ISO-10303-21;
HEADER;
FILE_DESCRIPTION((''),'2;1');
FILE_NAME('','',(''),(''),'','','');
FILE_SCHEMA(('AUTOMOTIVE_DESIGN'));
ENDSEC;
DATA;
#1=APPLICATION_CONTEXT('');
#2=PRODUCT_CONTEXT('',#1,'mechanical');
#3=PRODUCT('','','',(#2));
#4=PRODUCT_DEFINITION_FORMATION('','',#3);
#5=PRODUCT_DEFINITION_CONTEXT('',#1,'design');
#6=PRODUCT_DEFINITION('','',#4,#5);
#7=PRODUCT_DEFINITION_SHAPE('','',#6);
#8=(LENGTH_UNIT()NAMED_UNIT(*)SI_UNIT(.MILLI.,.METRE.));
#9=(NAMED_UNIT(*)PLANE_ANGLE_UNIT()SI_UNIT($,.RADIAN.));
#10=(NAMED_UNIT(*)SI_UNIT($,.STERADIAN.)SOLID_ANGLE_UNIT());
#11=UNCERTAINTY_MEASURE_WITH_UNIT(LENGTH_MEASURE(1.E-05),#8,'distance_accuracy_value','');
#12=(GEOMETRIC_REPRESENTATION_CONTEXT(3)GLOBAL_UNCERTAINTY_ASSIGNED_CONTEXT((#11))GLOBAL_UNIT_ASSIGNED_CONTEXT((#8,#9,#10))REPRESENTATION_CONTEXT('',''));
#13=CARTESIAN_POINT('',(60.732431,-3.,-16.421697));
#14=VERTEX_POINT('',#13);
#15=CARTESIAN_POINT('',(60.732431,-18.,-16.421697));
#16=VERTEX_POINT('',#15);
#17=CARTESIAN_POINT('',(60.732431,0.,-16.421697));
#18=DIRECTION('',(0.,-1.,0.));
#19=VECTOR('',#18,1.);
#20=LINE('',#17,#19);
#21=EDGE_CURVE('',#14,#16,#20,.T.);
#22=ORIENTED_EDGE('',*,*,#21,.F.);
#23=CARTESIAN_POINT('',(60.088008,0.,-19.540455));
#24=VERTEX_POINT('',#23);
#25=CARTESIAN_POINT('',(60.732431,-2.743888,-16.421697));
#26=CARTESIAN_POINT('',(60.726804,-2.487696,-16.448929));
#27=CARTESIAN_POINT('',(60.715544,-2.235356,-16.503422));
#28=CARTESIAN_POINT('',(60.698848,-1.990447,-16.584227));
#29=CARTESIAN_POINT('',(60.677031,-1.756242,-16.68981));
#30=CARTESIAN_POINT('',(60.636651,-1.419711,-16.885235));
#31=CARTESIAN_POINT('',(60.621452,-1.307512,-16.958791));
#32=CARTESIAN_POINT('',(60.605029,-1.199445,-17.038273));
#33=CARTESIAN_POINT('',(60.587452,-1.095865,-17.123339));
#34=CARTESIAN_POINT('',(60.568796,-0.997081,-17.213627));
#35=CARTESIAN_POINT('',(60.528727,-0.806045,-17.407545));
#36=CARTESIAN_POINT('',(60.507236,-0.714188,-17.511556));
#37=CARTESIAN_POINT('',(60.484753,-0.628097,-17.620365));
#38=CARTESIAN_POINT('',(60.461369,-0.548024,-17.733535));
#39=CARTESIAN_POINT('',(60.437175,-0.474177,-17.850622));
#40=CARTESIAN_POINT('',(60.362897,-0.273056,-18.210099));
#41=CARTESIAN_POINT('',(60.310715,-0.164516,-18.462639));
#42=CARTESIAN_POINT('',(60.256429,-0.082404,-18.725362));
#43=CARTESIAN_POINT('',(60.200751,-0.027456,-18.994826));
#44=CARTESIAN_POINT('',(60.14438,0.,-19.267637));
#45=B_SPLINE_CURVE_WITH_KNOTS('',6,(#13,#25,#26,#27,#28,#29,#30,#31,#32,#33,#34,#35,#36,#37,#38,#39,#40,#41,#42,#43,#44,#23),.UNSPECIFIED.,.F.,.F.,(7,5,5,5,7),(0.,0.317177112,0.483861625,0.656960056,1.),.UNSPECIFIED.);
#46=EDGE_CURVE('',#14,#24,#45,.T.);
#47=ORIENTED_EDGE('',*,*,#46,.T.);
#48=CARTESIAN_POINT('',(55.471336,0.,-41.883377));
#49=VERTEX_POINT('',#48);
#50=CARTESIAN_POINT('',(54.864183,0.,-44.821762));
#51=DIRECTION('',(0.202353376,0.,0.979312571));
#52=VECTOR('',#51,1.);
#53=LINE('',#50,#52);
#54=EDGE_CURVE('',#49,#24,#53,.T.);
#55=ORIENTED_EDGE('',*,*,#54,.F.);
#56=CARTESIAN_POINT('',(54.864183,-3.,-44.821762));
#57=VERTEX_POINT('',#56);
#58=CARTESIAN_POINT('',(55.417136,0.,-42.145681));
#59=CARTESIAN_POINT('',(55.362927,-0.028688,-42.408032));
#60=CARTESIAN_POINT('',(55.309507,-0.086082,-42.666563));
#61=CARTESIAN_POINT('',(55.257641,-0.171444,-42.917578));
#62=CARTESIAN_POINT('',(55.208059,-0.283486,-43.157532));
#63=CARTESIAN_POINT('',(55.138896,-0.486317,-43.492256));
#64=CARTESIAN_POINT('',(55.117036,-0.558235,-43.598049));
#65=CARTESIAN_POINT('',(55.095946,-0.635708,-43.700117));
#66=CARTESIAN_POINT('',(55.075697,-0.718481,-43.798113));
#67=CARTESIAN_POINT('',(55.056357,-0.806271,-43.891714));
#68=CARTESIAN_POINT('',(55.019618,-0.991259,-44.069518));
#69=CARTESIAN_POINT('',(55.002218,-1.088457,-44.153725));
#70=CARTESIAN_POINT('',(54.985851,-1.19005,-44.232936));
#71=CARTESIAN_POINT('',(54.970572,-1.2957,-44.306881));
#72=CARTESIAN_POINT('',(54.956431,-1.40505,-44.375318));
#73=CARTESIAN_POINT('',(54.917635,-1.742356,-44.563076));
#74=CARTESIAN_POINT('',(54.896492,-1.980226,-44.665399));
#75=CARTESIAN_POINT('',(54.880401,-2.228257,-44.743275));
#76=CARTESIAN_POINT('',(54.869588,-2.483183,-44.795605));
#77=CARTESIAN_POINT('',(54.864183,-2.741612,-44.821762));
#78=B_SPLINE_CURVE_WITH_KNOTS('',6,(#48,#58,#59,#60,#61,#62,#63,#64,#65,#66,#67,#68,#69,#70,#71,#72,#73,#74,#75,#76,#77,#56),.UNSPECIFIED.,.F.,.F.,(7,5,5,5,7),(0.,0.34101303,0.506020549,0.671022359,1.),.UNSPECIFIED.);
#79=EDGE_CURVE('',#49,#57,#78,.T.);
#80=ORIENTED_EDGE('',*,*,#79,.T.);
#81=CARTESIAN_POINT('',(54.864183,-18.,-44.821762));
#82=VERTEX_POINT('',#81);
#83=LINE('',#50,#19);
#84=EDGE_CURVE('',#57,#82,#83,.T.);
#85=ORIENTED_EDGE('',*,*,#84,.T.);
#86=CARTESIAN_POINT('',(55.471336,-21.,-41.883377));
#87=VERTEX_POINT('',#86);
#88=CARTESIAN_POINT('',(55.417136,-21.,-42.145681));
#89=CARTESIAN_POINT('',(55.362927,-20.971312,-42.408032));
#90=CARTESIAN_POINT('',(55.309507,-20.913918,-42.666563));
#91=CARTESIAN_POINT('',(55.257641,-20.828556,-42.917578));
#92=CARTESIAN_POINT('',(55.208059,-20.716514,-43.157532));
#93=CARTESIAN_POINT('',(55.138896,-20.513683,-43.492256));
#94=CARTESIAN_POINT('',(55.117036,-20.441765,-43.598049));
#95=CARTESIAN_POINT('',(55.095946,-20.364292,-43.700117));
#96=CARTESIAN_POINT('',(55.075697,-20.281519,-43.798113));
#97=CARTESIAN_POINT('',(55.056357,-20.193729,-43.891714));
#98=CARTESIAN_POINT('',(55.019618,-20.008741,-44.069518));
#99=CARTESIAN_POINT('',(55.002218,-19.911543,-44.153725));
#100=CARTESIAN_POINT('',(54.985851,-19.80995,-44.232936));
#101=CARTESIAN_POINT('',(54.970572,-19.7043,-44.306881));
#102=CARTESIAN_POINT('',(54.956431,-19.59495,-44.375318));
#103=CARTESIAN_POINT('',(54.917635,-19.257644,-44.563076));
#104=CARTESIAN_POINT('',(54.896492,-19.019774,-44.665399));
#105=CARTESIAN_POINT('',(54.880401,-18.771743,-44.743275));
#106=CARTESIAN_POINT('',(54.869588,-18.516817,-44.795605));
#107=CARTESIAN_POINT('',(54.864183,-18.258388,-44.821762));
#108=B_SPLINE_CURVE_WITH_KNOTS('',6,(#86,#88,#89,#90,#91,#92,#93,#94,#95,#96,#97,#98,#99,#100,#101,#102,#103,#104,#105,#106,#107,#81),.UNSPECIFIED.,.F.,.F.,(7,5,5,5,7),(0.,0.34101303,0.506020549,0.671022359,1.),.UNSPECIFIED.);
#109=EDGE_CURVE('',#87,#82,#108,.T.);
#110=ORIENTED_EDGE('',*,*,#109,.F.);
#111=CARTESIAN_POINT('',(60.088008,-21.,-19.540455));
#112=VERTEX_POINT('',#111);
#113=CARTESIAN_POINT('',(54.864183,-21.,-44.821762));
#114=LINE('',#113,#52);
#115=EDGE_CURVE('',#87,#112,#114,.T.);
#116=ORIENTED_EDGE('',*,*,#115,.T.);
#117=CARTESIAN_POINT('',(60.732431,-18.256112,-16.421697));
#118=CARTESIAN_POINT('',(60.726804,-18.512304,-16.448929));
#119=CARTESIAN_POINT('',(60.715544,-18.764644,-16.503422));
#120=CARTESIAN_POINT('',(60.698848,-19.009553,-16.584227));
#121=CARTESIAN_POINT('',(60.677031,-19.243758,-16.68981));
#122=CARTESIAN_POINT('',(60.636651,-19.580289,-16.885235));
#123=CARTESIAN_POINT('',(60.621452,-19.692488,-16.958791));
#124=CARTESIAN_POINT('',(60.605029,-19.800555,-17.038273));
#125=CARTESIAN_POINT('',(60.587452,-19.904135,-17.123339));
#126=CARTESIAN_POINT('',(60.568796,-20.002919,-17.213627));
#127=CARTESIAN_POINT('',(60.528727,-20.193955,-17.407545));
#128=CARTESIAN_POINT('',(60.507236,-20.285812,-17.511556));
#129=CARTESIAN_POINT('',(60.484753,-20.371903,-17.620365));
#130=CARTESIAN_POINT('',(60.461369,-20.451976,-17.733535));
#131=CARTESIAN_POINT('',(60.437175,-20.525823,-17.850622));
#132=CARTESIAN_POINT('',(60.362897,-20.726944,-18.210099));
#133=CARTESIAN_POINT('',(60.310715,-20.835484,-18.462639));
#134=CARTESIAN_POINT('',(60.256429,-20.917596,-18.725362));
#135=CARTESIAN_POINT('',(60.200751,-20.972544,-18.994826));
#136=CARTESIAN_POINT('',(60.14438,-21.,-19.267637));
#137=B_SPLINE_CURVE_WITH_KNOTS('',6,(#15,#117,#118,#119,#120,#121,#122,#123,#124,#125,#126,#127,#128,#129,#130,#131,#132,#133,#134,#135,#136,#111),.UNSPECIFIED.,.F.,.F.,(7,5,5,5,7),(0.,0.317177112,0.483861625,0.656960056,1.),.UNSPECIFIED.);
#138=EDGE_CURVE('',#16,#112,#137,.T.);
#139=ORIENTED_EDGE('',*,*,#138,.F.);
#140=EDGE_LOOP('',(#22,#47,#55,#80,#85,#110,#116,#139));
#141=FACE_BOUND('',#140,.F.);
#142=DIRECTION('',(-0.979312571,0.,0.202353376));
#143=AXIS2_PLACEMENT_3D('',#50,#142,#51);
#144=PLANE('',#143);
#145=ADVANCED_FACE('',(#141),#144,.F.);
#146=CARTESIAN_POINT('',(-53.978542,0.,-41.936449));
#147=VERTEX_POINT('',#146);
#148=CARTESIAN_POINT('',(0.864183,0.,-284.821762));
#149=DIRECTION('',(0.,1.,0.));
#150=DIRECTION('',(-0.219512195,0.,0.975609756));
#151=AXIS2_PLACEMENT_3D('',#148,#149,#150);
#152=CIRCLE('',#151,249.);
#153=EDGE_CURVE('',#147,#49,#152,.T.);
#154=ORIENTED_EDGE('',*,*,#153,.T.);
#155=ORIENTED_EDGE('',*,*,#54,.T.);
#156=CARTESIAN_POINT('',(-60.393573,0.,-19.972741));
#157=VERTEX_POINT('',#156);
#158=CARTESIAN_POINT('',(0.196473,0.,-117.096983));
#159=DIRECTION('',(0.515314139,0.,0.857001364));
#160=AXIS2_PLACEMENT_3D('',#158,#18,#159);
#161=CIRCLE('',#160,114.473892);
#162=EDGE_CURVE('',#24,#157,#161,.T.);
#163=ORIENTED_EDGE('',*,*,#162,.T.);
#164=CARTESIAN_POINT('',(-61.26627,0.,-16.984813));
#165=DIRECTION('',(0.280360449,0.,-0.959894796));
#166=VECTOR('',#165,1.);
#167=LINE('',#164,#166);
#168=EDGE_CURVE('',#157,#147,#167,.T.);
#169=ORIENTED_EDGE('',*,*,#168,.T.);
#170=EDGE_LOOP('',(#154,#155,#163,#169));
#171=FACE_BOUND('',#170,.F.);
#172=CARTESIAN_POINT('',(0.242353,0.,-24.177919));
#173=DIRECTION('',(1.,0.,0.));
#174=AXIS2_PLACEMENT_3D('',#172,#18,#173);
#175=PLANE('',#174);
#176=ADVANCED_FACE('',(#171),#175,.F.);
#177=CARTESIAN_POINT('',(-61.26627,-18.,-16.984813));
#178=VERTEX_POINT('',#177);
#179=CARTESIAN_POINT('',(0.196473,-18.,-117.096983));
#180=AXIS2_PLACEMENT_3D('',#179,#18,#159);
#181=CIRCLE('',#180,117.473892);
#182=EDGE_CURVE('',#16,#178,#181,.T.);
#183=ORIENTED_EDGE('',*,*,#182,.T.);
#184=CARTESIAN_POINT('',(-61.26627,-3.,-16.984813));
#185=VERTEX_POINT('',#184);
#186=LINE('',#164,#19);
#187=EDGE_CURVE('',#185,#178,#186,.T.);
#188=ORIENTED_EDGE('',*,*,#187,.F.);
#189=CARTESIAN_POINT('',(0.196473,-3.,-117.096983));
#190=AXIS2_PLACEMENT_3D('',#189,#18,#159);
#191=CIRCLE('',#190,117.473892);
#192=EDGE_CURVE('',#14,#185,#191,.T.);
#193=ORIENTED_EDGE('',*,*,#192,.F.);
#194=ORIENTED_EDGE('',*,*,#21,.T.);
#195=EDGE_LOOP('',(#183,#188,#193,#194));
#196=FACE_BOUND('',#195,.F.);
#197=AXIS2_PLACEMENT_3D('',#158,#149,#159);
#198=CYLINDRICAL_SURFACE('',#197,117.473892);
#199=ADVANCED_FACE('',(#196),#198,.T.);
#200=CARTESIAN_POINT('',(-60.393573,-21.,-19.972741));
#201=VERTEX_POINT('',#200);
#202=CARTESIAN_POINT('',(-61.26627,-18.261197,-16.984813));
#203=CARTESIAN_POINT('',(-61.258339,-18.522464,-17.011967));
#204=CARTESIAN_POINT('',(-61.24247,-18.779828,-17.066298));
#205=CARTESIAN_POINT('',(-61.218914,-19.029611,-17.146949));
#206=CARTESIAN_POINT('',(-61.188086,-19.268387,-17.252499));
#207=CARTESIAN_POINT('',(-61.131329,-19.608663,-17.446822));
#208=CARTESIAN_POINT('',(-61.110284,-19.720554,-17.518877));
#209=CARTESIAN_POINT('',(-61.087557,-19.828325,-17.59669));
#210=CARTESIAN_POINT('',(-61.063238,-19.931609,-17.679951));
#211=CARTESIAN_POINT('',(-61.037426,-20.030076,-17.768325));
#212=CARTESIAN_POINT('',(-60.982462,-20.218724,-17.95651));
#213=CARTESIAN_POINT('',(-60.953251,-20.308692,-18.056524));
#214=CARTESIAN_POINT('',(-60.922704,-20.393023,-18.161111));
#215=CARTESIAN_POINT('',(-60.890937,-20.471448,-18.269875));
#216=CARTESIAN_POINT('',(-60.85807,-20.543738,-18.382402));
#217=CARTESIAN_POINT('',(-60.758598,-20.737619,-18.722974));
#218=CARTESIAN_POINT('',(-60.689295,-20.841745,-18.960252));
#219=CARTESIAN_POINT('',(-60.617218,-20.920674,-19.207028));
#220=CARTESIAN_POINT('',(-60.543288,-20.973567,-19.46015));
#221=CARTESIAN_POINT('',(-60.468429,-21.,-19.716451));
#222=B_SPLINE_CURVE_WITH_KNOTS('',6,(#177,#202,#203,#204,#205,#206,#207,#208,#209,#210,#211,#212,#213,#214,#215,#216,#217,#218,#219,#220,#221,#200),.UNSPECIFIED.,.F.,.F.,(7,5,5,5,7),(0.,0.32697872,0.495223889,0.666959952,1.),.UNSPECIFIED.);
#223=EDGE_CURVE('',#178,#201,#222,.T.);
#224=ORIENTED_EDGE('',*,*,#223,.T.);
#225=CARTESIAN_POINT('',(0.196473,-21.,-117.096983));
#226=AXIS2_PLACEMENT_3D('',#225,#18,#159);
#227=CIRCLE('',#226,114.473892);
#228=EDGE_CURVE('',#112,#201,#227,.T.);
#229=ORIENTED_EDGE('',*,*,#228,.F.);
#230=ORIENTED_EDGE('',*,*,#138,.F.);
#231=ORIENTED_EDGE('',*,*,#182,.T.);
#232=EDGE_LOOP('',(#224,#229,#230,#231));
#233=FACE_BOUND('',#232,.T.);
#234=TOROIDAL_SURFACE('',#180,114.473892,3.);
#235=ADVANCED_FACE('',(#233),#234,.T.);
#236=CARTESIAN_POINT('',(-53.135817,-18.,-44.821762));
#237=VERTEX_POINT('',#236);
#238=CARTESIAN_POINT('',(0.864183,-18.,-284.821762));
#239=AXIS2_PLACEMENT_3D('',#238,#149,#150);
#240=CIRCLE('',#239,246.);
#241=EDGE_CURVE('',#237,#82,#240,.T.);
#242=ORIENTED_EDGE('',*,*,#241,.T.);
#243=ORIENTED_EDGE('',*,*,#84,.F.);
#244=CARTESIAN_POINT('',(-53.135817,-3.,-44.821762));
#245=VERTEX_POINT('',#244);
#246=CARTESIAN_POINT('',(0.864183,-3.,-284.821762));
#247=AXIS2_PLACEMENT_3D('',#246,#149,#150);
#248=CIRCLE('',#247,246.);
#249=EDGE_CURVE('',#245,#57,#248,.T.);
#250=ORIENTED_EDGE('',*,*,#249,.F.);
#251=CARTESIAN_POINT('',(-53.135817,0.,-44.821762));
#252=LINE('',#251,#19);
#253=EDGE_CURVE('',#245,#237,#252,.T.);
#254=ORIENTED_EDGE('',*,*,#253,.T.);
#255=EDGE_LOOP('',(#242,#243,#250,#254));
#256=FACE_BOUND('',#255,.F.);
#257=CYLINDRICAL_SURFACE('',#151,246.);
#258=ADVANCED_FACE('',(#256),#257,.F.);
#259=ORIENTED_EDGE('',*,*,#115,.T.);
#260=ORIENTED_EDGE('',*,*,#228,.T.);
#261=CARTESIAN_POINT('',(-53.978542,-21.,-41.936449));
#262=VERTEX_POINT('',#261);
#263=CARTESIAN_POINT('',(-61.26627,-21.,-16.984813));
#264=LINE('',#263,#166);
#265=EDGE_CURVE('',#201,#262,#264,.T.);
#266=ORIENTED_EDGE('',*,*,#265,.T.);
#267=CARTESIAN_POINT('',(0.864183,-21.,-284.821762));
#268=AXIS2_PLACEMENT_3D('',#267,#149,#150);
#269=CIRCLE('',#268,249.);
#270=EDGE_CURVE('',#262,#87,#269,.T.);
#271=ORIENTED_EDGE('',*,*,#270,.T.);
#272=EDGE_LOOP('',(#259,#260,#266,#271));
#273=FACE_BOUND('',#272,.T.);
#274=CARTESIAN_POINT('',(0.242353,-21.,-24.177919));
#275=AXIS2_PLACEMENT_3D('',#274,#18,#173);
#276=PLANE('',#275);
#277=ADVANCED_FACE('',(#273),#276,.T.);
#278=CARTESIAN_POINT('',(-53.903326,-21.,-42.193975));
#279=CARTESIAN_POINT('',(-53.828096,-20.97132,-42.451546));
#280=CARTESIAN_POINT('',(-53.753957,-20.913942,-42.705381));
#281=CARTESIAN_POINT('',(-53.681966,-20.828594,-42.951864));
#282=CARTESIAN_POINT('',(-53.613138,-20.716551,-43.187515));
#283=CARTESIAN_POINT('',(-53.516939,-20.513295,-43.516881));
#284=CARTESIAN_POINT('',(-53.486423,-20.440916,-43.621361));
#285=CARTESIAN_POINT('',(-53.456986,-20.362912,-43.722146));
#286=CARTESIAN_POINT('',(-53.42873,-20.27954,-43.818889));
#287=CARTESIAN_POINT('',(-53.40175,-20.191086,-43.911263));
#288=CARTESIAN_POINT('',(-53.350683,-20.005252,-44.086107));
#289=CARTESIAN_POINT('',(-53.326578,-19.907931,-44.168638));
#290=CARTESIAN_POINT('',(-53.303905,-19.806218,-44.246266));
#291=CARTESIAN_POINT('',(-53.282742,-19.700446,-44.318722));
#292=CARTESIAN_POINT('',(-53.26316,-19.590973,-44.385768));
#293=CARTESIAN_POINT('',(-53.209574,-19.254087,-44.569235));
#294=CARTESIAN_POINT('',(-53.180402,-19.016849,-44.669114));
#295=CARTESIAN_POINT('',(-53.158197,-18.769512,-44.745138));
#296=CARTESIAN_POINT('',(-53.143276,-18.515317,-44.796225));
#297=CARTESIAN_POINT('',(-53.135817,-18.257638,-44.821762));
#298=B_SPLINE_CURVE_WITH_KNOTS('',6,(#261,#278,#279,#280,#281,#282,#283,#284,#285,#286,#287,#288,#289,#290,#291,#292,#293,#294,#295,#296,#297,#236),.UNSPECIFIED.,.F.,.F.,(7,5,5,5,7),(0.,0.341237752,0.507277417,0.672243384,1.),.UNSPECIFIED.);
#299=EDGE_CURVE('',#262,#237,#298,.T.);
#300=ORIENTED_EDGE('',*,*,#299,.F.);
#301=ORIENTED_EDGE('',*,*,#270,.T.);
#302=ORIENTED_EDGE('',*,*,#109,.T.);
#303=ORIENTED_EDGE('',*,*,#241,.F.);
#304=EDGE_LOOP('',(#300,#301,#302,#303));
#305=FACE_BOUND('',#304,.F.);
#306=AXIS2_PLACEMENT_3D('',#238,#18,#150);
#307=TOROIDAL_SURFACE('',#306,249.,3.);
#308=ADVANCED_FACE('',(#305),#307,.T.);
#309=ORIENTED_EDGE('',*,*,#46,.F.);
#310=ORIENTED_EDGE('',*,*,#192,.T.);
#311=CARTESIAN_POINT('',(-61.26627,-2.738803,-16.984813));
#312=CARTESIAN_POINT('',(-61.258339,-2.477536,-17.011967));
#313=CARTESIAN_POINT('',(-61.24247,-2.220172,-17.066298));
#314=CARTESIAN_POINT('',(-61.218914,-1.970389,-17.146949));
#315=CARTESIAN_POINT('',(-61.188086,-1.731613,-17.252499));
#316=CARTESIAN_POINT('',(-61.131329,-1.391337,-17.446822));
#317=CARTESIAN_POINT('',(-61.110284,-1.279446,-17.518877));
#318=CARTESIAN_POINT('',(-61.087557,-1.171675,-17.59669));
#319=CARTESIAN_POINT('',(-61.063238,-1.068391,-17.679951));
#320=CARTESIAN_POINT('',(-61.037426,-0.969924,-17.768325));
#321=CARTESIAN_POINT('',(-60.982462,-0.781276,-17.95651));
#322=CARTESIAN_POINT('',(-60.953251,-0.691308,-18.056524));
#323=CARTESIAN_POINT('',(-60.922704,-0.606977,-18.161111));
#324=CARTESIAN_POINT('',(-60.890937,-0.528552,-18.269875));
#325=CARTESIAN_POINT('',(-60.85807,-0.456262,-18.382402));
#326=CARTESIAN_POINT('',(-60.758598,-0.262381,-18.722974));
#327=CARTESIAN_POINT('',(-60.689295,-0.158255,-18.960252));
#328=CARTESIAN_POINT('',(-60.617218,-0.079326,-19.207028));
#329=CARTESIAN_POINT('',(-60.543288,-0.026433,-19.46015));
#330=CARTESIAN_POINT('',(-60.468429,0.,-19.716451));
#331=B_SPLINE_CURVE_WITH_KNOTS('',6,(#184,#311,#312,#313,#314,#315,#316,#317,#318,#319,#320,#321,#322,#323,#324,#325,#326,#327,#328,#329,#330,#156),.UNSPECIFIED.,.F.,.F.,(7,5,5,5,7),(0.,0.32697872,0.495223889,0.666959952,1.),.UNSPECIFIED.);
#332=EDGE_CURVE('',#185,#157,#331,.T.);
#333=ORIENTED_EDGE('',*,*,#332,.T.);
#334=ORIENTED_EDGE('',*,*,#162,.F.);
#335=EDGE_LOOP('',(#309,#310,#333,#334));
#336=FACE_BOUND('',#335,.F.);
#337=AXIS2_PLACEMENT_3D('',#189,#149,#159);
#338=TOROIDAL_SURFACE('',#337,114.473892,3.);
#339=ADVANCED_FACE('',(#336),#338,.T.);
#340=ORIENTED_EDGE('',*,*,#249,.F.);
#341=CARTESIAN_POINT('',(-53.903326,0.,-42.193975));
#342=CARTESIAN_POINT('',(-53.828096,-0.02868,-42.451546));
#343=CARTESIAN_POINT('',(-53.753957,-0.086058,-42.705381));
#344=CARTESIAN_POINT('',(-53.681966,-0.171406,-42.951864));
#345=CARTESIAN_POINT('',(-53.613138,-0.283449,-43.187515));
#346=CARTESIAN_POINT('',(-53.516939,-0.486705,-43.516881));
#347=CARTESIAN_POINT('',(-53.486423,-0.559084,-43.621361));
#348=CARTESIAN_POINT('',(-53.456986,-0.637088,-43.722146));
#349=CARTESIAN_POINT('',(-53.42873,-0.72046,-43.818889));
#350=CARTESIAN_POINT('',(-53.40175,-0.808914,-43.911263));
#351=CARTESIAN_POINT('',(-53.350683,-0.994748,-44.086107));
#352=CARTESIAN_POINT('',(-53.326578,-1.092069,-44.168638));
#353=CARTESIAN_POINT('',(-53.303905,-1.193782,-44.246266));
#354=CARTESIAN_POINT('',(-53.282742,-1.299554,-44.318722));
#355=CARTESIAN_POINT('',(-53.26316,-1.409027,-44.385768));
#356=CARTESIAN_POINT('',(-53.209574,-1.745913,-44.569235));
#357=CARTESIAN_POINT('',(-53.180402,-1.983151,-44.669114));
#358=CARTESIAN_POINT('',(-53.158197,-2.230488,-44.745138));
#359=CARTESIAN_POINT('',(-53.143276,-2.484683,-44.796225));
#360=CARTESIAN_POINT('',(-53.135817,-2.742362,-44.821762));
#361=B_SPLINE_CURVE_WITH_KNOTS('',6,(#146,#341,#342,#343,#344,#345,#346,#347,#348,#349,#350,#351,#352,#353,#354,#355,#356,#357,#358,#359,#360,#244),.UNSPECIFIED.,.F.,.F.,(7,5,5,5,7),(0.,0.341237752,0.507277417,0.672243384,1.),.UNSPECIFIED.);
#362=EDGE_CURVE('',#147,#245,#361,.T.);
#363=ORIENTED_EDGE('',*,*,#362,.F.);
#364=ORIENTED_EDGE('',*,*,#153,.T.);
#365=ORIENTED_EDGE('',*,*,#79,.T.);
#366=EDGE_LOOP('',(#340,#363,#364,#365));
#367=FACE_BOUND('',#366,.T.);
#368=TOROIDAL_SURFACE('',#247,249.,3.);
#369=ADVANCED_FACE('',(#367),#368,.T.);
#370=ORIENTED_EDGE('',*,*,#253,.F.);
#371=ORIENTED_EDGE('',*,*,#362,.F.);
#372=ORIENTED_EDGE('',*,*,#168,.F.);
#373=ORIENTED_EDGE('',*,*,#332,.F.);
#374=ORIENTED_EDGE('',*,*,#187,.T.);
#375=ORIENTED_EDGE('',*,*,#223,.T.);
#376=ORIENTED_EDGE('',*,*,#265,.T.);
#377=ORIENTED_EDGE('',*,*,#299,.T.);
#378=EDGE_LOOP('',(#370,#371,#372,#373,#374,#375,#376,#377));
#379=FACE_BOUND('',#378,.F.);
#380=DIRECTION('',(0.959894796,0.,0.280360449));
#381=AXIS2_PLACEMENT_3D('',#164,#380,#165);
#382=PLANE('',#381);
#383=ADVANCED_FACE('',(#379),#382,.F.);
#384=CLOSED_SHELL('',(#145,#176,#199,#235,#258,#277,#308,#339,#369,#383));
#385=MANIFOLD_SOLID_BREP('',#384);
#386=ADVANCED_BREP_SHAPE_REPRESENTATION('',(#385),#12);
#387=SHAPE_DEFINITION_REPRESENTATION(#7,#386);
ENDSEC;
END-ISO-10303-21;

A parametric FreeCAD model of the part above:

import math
import FreeCAD as App
import Part
import Sketcher
Q = App.Units.Quantity


def edges_at(feature, points):
    """Names of the edges that pass closest to the given points."""
    edges = feature.Shape.Edges
    near = lambda p: min(range(len(edges)), key=lambda i: edges[i].distToShape(Part.Vertex(*p))[0])
    return sorted({f"Edge{near(p) + 1}" for p in points})

doc = App.newDocument("Part")
body = doc.addObject("PartDesign::Body", "Body")

sketch1 = body.newObject("Sketcher::SketchObject", "Sketch")
sketch1.AttachmentSupport = (doc.getObject("XZ_Plane"), [""])
sketch1.MapMode = "FlatFace"
sketch1.addGeometry(Part.LineSegment(App.Vector(54.864183, -44.821762, 0), App.Vector(60.732431, -16.421697, 0)), False)
sketch1.addGeometry(Part.ArcOfCircle(Part.Circle(App.Vector(0.196473, -117.096983, 0), App.Vector(0, 0, 1), 117.473892), math.radians(58.981545), math.radians(121.547378)), False)
sketch1.addGeometry(Part.LineSegment(App.Vector(-61.26627, -16.984813, 0), App.Vector(-53.135817, -44.821762, 0)), False)
sketch1.addGeometry(Part.ArcOfCircle(Part.Circle(App.Vector(0.864183, -284.821762, 0), App.Vector(0, 0, 1), 246), math.radians(77.319617), math.radians(102.680383)), False)
sketch1.addConstraint(Sketcher.Constraint("Coincident", 0, 2, 1, 1))
sketch1.addConstraint(Sketcher.Constraint("Coincident", 1, 2, 2, 1))
sketch1.addConstraint(Sketcher.Constraint("Coincident", 2, 2, 3, 2))
sketch1.addConstraint(Sketcher.Constraint("Coincident", 3, 1, 0, 1))
sketch1.addConstraint(Sketcher.Constraint("Horizontal", 2, 2, 3, 1))
sketch1.addConstraint(Sketcher.Constraint("Equal", 0, 2))
sketch1.addConstraint(Sketcher.Constraint("Radius", 3, Q("246 mm")))
sketch1.addConstraint(Sketcher.Constraint("Distance", 0, Q("29 mm")))
sketch1.addConstraint(Sketcher.Constraint("DistanceX", 2, 2, 3, 3, Q("54 mm")))
sketch1.addConstraint(Sketcher.Constraint("Radius", 1, Q("117.473892 mm")))
sketch1.addConstraint(Sketcher.Constraint("DistanceX", 1, 2, 0, 2, Q("121.998701 mm")))
sketch1.addConstraint(Sketcher.Constraint("DistanceY", 3, 3, -1, 1, Q("284.821762 mm")))
sketch1.addConstraint(Sketcher.Constraint("DistanceX", -1, 1, 0, 2, Q("60.732431 mm")))
sketch1.addConstraint(Sketcher.Constraint("DistanceX", 1, 3, 3, 3, Q("0.66771 mm")))
pad1 = body.newObject("PartDesign::Pad", "Pad")
pad1.Profile = sketch1
pad1.Length = 21
doc.recompute()

fillet = body.newObject("PartDesign::Fillet", "Fillet")
fillet.Base = (pad1, edges_at(pad1, [(-0.346, -21, 0.376)]))
fillet.Radius = 3
doc.recompute()

fillet2 = body.newObject("PartDesign::Fillet", "Fillet001")
fillet2.Base = (fillet, edges_at(fillet, [(-0.346, 0, 0.376), (0.864, -21, -38.822), (0.864, 0, -38.822)]))
fillet2.Radius = 3

doc.recompute()
